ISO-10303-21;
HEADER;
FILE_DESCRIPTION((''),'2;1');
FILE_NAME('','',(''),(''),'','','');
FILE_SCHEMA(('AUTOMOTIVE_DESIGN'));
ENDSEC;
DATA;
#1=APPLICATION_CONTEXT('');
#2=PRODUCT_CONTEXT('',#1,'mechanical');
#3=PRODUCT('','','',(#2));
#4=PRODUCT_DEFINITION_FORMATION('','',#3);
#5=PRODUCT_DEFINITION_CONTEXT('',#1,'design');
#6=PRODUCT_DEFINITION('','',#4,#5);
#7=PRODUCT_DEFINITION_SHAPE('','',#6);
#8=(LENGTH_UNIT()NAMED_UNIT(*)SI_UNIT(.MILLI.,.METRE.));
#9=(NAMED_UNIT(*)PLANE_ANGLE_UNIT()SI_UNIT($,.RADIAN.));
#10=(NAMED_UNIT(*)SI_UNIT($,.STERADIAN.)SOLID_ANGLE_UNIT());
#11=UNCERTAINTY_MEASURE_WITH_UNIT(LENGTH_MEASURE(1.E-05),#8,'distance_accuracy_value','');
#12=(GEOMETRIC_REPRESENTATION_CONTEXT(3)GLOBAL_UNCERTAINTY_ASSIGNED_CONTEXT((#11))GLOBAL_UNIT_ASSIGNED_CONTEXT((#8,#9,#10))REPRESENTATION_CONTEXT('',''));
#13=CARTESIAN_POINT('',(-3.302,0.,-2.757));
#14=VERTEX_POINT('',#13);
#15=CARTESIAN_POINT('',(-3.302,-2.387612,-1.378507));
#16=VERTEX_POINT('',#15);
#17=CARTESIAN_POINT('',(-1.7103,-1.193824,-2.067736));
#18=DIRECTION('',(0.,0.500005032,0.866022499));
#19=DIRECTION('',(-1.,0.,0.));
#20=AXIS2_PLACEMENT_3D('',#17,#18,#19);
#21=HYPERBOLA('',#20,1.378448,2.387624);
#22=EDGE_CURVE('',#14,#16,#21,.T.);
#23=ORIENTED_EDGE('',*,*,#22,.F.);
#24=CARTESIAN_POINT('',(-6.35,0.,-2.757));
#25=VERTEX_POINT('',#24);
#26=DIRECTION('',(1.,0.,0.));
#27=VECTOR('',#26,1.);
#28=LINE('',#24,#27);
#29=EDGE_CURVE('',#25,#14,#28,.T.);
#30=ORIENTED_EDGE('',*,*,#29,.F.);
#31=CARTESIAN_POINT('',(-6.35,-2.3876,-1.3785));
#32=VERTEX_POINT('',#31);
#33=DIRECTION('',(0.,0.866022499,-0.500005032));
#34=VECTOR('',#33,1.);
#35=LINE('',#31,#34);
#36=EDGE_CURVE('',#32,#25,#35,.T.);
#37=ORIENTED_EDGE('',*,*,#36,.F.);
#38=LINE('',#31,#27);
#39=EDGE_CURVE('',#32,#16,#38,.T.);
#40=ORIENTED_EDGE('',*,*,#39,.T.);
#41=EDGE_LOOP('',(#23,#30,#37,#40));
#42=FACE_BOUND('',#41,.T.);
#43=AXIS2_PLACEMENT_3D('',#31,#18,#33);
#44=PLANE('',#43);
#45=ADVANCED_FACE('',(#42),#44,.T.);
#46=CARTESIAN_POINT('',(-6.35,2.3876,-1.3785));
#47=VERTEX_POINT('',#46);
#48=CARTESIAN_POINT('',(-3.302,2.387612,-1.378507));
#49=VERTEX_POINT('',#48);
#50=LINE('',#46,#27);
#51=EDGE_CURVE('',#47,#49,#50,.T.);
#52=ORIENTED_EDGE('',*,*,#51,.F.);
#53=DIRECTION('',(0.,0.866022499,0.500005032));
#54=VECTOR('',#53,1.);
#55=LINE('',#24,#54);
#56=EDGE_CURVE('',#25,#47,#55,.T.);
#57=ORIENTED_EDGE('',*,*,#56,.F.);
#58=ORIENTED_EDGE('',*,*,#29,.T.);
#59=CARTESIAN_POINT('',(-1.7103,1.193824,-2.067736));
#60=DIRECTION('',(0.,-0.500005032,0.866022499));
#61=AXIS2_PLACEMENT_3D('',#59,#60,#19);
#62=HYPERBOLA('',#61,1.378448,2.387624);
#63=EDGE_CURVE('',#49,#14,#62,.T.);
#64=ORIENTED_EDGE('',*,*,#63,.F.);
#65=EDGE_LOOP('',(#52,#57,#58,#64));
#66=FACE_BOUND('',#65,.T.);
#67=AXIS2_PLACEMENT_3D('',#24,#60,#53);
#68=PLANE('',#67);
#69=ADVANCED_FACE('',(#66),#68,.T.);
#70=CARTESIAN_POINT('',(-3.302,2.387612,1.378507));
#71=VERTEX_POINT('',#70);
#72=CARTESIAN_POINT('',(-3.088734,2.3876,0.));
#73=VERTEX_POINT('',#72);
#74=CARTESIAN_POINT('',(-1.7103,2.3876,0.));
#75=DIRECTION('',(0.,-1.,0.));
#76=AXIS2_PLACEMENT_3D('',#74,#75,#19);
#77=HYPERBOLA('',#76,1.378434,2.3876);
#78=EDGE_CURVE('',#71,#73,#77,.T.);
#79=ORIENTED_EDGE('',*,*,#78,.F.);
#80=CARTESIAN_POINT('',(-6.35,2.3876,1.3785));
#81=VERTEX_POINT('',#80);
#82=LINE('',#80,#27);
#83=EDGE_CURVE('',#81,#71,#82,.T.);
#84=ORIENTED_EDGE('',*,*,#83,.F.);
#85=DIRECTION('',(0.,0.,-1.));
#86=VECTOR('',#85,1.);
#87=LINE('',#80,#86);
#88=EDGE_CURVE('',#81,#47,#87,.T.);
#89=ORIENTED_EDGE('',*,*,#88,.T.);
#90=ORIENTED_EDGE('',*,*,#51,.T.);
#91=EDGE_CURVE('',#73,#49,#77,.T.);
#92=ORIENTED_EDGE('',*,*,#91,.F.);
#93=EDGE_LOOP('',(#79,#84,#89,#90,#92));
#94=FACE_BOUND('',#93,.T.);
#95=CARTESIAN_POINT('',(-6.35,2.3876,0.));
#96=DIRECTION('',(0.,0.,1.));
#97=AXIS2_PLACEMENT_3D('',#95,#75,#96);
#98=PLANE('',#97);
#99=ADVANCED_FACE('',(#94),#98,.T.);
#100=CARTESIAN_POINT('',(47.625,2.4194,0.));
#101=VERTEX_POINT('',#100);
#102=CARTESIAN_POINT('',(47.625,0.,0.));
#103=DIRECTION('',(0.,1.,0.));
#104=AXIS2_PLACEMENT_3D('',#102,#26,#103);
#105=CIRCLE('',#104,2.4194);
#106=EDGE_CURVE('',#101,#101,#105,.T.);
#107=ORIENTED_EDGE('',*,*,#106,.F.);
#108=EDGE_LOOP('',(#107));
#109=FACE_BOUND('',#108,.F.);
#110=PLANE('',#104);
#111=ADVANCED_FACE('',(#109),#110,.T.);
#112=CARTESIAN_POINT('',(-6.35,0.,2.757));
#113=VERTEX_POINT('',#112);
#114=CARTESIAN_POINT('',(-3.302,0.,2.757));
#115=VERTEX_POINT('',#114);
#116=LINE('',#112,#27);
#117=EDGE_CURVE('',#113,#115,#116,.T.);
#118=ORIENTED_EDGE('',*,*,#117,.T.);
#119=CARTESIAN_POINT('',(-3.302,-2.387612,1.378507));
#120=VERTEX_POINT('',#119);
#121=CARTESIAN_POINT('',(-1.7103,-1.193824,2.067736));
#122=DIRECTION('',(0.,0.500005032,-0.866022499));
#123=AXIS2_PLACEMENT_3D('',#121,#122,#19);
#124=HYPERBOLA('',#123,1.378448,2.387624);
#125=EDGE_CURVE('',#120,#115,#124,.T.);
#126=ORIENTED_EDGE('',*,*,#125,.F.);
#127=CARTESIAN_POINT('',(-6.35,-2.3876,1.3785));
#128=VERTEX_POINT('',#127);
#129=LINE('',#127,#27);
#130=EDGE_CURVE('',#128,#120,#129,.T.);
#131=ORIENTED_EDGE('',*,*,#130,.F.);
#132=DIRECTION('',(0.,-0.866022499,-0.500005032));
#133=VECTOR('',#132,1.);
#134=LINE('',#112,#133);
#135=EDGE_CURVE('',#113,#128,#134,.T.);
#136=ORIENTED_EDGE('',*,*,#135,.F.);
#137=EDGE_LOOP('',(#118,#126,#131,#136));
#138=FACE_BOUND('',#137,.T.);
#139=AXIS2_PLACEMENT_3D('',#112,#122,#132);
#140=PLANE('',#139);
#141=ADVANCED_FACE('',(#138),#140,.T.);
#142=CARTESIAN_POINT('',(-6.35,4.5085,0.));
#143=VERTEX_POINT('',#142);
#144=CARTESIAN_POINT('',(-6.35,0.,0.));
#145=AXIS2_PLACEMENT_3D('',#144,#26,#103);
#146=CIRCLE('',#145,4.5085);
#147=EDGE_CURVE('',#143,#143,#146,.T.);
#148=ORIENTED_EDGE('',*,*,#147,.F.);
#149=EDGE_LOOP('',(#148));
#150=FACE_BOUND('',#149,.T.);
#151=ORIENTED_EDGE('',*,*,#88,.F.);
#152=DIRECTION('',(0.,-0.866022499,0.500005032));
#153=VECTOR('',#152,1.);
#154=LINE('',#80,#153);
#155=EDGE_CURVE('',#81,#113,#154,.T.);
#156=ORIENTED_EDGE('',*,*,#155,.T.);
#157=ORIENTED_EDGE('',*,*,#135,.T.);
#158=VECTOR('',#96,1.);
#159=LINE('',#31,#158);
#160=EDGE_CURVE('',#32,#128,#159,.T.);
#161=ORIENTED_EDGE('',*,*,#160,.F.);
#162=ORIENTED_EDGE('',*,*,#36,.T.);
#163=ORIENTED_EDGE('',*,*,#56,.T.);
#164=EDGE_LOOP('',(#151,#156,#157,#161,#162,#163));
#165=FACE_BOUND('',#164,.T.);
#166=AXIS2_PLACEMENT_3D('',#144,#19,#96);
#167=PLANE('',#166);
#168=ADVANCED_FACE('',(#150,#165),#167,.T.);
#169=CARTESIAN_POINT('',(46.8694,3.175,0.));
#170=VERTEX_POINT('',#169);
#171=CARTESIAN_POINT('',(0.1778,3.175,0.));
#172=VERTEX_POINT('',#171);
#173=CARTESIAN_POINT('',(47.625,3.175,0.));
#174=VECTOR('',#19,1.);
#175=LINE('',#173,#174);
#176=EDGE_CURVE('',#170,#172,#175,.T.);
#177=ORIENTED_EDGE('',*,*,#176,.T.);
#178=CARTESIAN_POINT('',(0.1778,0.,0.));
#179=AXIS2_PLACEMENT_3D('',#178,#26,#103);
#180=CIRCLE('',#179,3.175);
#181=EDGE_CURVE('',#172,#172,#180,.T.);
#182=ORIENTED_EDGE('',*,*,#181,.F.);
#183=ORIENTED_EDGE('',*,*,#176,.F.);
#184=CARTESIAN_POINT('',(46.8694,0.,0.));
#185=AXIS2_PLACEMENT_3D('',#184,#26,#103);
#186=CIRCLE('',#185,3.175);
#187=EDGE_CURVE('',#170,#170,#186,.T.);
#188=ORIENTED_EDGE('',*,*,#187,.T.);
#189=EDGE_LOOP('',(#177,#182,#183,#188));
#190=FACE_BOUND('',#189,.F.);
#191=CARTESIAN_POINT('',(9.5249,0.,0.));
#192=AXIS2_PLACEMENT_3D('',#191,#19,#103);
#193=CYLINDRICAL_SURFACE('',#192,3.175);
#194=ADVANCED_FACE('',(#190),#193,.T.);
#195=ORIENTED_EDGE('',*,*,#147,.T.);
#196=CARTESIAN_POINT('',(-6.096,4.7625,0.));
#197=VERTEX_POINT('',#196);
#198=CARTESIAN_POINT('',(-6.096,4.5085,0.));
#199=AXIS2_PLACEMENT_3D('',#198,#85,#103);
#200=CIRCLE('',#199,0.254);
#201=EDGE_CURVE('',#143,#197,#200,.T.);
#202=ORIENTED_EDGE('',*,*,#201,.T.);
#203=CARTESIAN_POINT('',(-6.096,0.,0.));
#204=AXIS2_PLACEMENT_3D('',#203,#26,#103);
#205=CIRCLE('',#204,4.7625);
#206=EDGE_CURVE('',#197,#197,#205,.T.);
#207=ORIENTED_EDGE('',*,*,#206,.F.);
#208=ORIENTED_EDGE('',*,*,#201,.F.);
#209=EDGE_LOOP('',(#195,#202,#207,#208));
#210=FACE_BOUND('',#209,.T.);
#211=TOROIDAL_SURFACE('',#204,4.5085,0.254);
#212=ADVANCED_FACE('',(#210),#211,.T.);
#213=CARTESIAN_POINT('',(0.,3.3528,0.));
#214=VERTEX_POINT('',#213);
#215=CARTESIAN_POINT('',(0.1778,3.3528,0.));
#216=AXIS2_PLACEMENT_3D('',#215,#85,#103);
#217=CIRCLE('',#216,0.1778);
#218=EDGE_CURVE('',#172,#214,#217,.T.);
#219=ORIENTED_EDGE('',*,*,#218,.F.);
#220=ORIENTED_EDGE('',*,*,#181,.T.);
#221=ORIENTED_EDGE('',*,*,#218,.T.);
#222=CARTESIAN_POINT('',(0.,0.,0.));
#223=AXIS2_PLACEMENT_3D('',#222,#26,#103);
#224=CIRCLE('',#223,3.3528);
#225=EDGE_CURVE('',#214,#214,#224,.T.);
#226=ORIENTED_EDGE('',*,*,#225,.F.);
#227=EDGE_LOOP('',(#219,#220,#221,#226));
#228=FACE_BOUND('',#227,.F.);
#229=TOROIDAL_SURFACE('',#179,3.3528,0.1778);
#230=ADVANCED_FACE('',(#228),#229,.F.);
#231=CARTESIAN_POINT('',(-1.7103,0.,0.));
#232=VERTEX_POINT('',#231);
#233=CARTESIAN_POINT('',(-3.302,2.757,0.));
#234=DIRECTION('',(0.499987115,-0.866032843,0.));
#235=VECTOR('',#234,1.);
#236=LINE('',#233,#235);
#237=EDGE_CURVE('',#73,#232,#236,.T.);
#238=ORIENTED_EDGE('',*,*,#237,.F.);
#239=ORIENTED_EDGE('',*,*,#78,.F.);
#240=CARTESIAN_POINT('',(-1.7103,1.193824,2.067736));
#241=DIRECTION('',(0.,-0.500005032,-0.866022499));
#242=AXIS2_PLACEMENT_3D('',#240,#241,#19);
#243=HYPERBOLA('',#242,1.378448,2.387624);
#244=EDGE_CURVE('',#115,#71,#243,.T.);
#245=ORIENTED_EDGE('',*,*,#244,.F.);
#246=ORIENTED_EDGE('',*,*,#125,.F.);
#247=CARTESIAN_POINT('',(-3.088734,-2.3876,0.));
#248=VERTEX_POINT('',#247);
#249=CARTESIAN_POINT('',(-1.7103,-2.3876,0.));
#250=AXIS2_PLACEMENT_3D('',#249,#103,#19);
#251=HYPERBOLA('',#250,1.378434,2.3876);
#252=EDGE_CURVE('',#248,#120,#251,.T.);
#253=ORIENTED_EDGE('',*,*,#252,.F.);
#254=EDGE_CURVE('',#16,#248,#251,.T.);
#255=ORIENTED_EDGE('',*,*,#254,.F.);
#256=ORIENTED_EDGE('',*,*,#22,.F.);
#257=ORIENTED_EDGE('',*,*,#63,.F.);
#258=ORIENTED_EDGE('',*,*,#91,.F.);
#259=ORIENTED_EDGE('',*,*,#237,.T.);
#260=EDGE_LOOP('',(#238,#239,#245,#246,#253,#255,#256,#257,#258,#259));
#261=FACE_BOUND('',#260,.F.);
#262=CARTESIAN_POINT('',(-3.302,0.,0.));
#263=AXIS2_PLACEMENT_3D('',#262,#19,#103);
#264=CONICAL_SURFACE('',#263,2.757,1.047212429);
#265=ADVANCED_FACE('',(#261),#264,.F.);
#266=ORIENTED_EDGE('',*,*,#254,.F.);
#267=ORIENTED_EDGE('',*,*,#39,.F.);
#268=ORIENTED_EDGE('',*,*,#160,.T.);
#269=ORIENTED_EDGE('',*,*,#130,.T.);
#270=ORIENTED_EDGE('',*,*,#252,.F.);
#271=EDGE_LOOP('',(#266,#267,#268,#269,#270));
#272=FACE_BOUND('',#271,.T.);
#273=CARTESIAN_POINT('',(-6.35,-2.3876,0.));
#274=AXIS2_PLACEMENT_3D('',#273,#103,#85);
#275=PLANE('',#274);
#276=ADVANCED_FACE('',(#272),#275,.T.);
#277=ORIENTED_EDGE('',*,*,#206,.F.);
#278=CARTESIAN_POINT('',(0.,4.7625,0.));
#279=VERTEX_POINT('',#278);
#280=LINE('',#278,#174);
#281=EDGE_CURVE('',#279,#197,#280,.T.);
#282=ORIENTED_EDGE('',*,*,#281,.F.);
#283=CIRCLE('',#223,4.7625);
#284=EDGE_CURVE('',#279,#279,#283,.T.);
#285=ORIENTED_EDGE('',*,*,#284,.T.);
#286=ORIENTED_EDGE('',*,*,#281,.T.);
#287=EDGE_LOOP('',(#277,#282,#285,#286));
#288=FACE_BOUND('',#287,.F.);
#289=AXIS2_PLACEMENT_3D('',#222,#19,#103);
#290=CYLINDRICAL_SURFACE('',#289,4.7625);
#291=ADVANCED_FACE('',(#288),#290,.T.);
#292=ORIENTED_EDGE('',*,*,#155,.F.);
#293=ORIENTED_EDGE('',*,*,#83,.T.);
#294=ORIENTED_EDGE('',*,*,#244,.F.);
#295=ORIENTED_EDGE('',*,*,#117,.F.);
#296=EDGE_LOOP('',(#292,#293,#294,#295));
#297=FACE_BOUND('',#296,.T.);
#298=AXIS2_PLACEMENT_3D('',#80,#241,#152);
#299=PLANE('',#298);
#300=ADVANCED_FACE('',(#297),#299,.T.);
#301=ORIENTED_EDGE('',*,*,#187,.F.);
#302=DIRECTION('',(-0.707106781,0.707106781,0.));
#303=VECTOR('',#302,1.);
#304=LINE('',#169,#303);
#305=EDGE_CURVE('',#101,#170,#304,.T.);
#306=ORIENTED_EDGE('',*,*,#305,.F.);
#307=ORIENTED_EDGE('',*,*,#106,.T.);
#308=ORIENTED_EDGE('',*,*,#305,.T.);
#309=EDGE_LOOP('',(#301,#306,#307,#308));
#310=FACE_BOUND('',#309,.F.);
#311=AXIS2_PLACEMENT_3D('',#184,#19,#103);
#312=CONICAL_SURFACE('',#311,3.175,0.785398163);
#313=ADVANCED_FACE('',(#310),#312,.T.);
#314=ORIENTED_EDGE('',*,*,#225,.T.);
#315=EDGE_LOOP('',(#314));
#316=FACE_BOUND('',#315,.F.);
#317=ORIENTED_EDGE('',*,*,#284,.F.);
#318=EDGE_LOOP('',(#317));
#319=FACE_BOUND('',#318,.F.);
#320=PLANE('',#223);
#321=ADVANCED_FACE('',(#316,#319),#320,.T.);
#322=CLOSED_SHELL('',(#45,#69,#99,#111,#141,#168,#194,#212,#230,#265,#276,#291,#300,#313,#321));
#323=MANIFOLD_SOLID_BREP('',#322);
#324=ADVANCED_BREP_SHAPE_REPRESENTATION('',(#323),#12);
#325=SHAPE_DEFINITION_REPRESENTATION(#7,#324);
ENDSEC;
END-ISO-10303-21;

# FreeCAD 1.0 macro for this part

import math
import FreeCAD as App
import Part
import Sketcher
Q = App.Units.Quantity


def edges_at(feature, points):
    """Names of the edges that pass closest to the given points."""
    edges = feature.Shape.Edges
    near = lambda p: min(range(len(edges)), key=lambda i: edges[i].distToShape(Part.Vertex(*p))[0])
    return sorted({f"Edge{near(p) + 1}" for p in points})

doc = App.newDocument("Part")
body = doc.addObject("PartDesign::Body", "Body")

# Sketch on XY plane
sketch1 = body.newObject("Sketcher::SketchObject", "Sketch")
sketch1.AttachmentSupport = (doc.getObject("XY_Plane"), [""])
sketch1.MapMode = "FlatFace"
sketch1.addGeometry(Part.LineSegment(App.Vector(-3.3, 2.8, 0), App.Vector(-1.7, 0, 0)), False)
sketch1.addGeometry(Part.LineSegment(App.Vector(-1.7, 0, 0), App.Vector(47.6, 0, 0)), False)
sketch1.addGeometry(Part.LineSegment(App.Vector(47.6, 0, 0), App.Vector(47.6, 3.2, 0)), False)
sketch1.addGeometry(Part.LineSegment(App.Vector(47.6, 3.2, 0), App.Vector(0, 3.2, 0)), False)
sketch1.addGeometry(Part.LineSegment(App.Vector(0, 3.2, 0), App.Vector(0, 4.8, 0)), False)
sketch1.addGeometry(Part.LineSegment(App.Vector(0, 4.8, 0), App.Vector(-6.3, 4.8, 0)), False)
sketch1.addGeometry(Part.LineSegment(App.Vector(-6.3, 4.8, 0), App.Vector(-6.3, 2.8, 0)), False)
sketch1.addGeometry(Part.LineSegment(App.Vector(-6.3, 2.8, 0), App.Vector(-3.3, 2.8, 0)), False)
sketch1.addConstraint(Sketcher.Constraint("Coincident", 0, 2, 1, 1))
sketch1.addConstraint(Sketcher.Constraint("Coincident", 1, 2, 2, 1))
sketch1.addConstraint(Sketcher.Constraint("Coincident", 2, 2, 3, 1))
sketch1.addConstraint(Sketcher.Constraint("Coincident", 3, 2, 4, 1))
sketch1.addConstraint(Sketcher.Constraint("Coincident", 4, 2, 5, 1))
sketch1.addConstraint(Sketcher.Constraint("Coincident", 5, 2, 6, 1))
sketch1.addConstraint(Sketcher.Constraint("Coincident", 6, 2, 7, 1))
sketch1.addConstraint(Sketcher.Constraint("Coincident", 7, 2, 0, 1))
sketch1.addConstraint(Sketcher.Constraint("Horizontal", 1))
sketch1.addConstraint(Sketcher.Constraint("Vertical", 2))
sketch1.addConstraint(Sketcher.Constraint("Horizontal", 3))
sketch1.addConstraint(Sketcher.Constraint("Vertical", 4))
sketch1.addConstraint(Sketcher.Constraint("Horizontal", 5))
sketch1.addConstraint(Sketcher.Constraint("Vertical", 6))
sketch1.addConstraint(Sketcher.Constraint("Horizontal", 7))
sketch1.addConstraint(Sketcher.Constraint("PointOnObject", 0, 2, -1))
sketch1.addConstraint(Sketcher.Constraint("PointOnObject", 3, 2, -2))
sketch1.addConstraint(Sketcher.Constraint("DistanceX", 5, 2, 5, 1, Q("0.25 in")))
sketch1.addConstraint(Sketcher.Constraint("DistanceX", 7, 1, 7, 2, Q("0.12 in")))
sketch1.addConstraint(Sketcher.Constraint("DistanceX", 3, 2, 3, 1, Q("1.875 in")))
sketch1.addConstraint(Sketcher.Constraint("DistanceY", 2, 1, 2, 2, Q("0.125 in")))
sketch1.addConstraint(Sketcher.Constraint("Angle", 0, Q("-60.0009 deg")))
sketch1.addConstraint(Sketcher.Constraint("DistanceY", 4, 1, 4, 2, Q("0.0625 in")))
sketch1.addConstraint(Sketcher.Constraint("DistanceX", 1, 1, 1, 2, 49.3353))
revolution = body.newObject("PartDesign::Revolution", "Revolution")
revolution.Profile = sketch1
revolution.ReferenceAxis = (sketch1, ["H_Axis"])
revolution.Angle = 360

# Sketch on YZ plane
sketch2 = body.newObject("Sketcher::SketchObject", "Sketch001")
sketch2.AttachmentSupport = (doc.getObject("YZ_Plane"), [""])
sketch2.MapMode = "FlatFace"
sketch2.AttachmentOffset = App.Placement(App.Vector(0, 0, -0.25 * 25.4), App.Rotation())
sketch2.addGeometry(Part.LineSegment(App.Vector(2.4, 1.4, 0), App.Vector(0, 2.8, 0)), False)
sketch2.addGeometry(Part.ArcOfCircle(Part.Circle(App.Vector(0, 0, 0), App.Vector(0, 0, 1), 2.8), math.radians(30), math.radians(90)), False)
sketch2.addGeometry(Part.ArcOfCircle(Part.Circle(App.Vector(0, 0, 0), App.Vector(0, 0, 1), 2.8), math.radians(90), math.radians(150)), False)
sketch2.addGeometry(Part.LineSegment(App.Vector(0, 2.8, 0), App.Vector(-2.4, 1.4, 0)), False)
sketch2.addGeometry(Part.ArcOfCircle(Part.Circle(App.Vector(0, 0, 0), App.Vector(0, 0, 1), 2.8), math.radians(-30), math.radians(30)), False)
sketch2.addGeometry(Part.LineSegment(App.Vector(2.4, 1.4, 0), App.Vector(2.4, -1.4, 0)), False)
sketch2.addGeometry(Part.LineSegment(App.Vector(-2.4, 1.4, 0), App.Vector(-2.4, -1.4, 0)), False)
sketch2.addGeometry(Part.ArcOfCircle(Part.Circle(App.Vector(0, 0, 0), App.Vector(0, 0, 1), 2.8), math.radians(150), math.radians(210)), False)
sketch2.addGeometry(Part.LineSegment(App.Vector(-2.4, -1.4, 0), App.Vector(0, -2.8, 0)), False)
sketch2.addGeometry(Part.ArcOfCircle(Part.Circle(App.Vector(0, 0, 0), App.Vector(0, 0, 1), 2.8), math.radians(-150), math.radians(-90)), False)
sketch2.addGeometry(Part.ArcOfCircle(Part.Circle(App.Vector(0, 0, 0), App.Vector(0, 0, 1), 2.8), math.radians(-90), math.radians(-30)), False)
sketch2.addGeometry(Part.LineSegment(App.Vector(0, -2.8, 0), App.Vector(2.4, -1.4, 0)), False)
sketch2.addConstraint(Sketcher.Constraint("Coincident", 0, 1, 1, 1))
sketch2.addConstraint(Sketcher.Constraint("Coincident", 1, 2, 0, 2))
sketch2.addConstraint(Sketcher.Constraint("Coincident", 2, 1, 3, 1))
sketch2.addConstraint(Sketcher.Constraint("Coincident", 3, 2, 2, 2))
sketch2.addConstraint(Sketcher.Constraint("Coincident", 4, 1, 5, 2))
sketch2.addConstraint(Sketcher.Constraint("Coincident", 5, 1, 4, 2))
sketch2.addConstraint(Sketcher.Constraint("Coincident", 6, 1, 7, 1))
sketch2.addConstraint(Sketcher.Constraint("Coincident", 7, 2, 6, 2))
sketch2.addConstraint(Sketcher.Constraint("Coincident", 8, 1, 9, 1))
sketch2.addConstraint(Sketcher.Constraint("Coincident", 9, 2, 8, 2))
sketch2.addConstraint(Sketcher.Constraint("Coincident", 10, 1, 11, 1))
sketch2.addConstraint(Sketcher.Constraint("Coincident", 11, 2, 10, 2))
sketch2.addConstraint(Sketcher.Constraint("Vertical", 5))
sketch2.addConstraint(Sketcher.Constraint("Vertical", 6))
sketch2.addConstraint(Sketcher.Constraint("Coincident", 1, 3, -1, 1))
sketch2.addConstraint(Sketcher.Constraint("Coincident", 2, 3, -1, 1))
sketch2.addConstraint(Sketcher.Constraint("Coincident", 4, 3, -1, 1))
sketch2.addConstraint(Sketcher.Constraint("Coincident", 7, 3, -1, 1))
sketch2.addConstraint(Sketcher.Constraint("Coincident", 9, 3, -1, 1))
sketch2.addConstraint(Sketcher.Constraint("Coincident", 10, 3, -1, 1))
sketch2.addConstraint(Sketcher.Constraint("Coincident", 2, 1, 1, 2))
sketch2.addConstraint(Sketcher.Constraint("Coincident", 5, 1, 0, 1))
sketch2.addConstraint(Sketcher.Constraint("Coincident", 6, 1, 3, 2))
sketch2.addConstraint(Sketcher.Constraint("Coincident", 8, 1, 7, 2))
sketch2.addConstraint(Sketcher.Constraint("Coincident", 10, 1, 9, 2))
sketch2.addConstraint(Sketcher.Constraint("PointOnObject", 1, 2, -2))
sketch2.addConstraint(Sketcher.Constraint("PointOnObject", 9, 2, -2))
sketch2.addConstraint(Sketcher.Constraint("Parallel", 0, 8))
sketch2.addConstraint(Sketcher.Constraint("Parallel", 3, 11))
sketch2.addConstraint(Sketcher.Constraint("Angle", 0, Q("149.9997 deg")))
sketch2.addConstraint(Sketcher.Constraint("Radius", 1, 2.757))
pad1 = body.newObject("PartDesign::Pad", "Pad")
pad1.Profile = sketch2
pad1.Type = "UpToFirst"
doc.recompute()

fillet = body.newObject("PartDesign::Fillet", "Fillet")
fillet.Base = (pad1, edges_at(pad1, [(-6.35, -4.763, 0)]))
fillet.Radius = Q("0.01 in")
doc.recompute()

chamfer = body.newObject("PartDesign::Chamfer", "Chamfer")
chamfer.Base = (fillet, edges_at(fillet, [(47.625, -3.175, 0)]))
chamfer.ChamferType = "Two distances"
chamfer.Size = 0.7556
chamfer.Size2 = 0.7556
doc.recompute()

fillet2 = body.newObject("PartDesign::Fillet", "Fillet001")
fillet2.Base = (chamfer, edges_at(chamfer, [(0, -3.175, 0)]))
fillet2.Radius = Q("0.007 in")

doc.recompute()
